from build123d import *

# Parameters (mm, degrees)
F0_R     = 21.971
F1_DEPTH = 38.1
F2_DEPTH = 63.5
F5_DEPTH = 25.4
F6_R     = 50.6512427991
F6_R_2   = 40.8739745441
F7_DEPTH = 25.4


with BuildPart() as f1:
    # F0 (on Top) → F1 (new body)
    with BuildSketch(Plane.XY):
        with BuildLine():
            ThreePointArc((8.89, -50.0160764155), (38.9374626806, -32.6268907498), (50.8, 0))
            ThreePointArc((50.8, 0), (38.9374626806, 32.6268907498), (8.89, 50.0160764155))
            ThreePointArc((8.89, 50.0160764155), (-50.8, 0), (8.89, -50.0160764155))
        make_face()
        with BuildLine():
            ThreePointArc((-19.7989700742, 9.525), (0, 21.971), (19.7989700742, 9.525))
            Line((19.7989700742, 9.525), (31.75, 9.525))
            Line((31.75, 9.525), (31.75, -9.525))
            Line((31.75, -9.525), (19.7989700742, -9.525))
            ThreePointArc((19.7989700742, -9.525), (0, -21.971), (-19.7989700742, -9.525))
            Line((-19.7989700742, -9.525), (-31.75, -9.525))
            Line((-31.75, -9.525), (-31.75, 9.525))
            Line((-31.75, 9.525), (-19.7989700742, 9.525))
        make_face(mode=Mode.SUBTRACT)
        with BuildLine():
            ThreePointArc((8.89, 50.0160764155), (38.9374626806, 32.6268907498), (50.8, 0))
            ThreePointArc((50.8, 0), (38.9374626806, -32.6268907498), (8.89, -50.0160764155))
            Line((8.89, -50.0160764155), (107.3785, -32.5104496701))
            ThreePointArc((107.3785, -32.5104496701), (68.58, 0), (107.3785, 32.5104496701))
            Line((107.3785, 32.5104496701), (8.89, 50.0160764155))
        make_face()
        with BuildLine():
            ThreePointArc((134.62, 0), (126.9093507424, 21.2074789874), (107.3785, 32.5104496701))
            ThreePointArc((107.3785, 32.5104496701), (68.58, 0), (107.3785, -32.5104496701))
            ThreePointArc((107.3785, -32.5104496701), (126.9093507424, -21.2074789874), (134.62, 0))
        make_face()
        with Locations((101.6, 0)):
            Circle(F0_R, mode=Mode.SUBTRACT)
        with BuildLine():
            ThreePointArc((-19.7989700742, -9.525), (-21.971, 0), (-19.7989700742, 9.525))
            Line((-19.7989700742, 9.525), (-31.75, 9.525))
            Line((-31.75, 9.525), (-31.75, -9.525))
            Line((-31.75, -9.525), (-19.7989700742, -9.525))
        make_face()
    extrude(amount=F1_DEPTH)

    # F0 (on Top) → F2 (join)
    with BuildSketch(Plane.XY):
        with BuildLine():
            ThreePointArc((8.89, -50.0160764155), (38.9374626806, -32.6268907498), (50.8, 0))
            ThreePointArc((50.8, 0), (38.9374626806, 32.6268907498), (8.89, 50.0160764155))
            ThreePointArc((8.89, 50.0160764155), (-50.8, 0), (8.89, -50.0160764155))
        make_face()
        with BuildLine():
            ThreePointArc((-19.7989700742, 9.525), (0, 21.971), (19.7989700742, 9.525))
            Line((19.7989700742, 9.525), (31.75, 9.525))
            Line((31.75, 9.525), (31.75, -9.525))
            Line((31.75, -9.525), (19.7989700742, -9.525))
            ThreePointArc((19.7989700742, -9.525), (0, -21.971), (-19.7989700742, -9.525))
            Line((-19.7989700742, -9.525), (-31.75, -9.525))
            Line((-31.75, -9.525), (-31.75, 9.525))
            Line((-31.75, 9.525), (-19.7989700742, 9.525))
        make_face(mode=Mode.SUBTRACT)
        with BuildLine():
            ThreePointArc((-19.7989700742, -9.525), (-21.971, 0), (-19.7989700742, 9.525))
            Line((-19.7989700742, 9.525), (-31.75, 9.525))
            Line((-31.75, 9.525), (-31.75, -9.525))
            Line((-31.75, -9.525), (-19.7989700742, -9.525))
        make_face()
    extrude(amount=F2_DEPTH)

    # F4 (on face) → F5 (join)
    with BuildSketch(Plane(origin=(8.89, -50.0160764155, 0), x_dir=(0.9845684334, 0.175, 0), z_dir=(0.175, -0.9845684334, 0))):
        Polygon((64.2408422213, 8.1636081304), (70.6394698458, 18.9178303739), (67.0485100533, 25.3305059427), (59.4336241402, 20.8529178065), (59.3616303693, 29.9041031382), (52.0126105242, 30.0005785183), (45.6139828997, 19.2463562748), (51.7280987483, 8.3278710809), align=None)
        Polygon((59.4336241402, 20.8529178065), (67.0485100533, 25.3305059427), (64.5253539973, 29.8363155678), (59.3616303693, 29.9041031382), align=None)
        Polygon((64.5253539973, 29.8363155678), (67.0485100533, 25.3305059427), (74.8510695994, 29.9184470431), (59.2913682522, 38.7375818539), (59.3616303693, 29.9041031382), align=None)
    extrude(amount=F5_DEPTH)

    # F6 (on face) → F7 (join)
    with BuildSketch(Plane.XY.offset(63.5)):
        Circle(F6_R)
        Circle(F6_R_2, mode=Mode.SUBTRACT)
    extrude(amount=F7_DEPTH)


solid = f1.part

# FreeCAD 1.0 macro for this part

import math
import FreeCAD as App
import Part
import Sketcher
Q = App.Units.Quantity

doc = App.newDocument("Part")
body = doc.addObject("PartDesign::Body", "Body")

# Sketch on XY plane
sketch1 = body.newObject("Sketcher::SketchObject", "Sketch")
sketch1.AttachmentSupport = (doc.getObject("XY_Plane"), [""])
sketch1.MapMode = "FlatFace"
sketch1.addGeometry(Part.ArcOfCircle(Part.Circle(App.Vector(0, 0, 0), App.Vector(0, 0, 1), 51), math.radians(80), math.radians(280)), False)
sketch1.addGeometry(Part.LineSegment(App.Vector(9, -50, 0), App.Vector(107, -33, 0)), False)
sketch1.addGeometry(Part.ArcOfCircle(Part.Circle(App.Vector(102, 0, 0), App.Vector(0, 0, 1), 33), math.radians(-80), math.radians(80)), False)
sketch1.addGeometry(Part.LineSegment(App.Vector(107, 33, 0), App.Vector(9, 50, 0)), False)
sketch1.addGeometry(Part.ArcOfCircle(Part.Circle(App.Vector(0, 0, 0), App.Vector(0, 0, 1), 22), math.radians(26), math.radians(154)), False)
sketch1.addGeometry(Part.LineSegment(App.Vector(20, 10, 0), App.Vector(32, 10, 0)), False)
sketch1.addGeometry(Part.LineSegment(App.Vector(32, 10, 0), App.Vector(32, -10, 0)), False)
sketch1.addGeometry(Part.LineSegment(App.Vector(32, -10, 0), App.Vector(20, -10, 0)), False)
sketch1.addGeometry(Part.ArcOfCircle(Part.Circle(App.Vector(0, 0, 0), App.Vector(0, 0, 1), 22), math.radians(-154), math.radians(-26)), False)
sketch1.addGeometry(Part.ArcOfCircle(Part.Circle(App.Vector(0, 0, 0), App.Vector(0, 0, 1), 22), math.radians(154), math.radians(206)), False)
sketch1.addGeometry(Part.Circle(App.Vector(102, 0, 0), App.Vector(0, 0, 1), 22), False)
sketch1.addConstraint(Sketcher.Constraint("Tangent", 0, 2, 1, 1))
sketch1.addConstraint(Sketcher.Constraint("Tangent", 1, 2, 2, 1))
sketch1.addConstraint(Sketcher.Constraint("Tangent", 2, 2, 3, 1))
sketch1.addConstraint(Sketcher.Constraint("Tangent", 3, 2, 0, 1))
sketch1.addConstraint(Sketcher.Constraint("Coincident", 4, 1, 5, 1))
sketch1.addConstraint(Sketcher.Constraint("Coincident", 5, 2, 6, 1))
sketch1.addConstraint(Sketcher.Constraint("Coincident", 6, 2, 7, 1))
sketch1.addConstraint(Sketcher.Constraint("Coincident", 7, 2, 8, 2))
sketch1.addConstraint(Sketcher.Constraint("Tangent", 8, 1, 9, 2))
sketch1.addConstraint(Sketcher.Constraint("Tangent", 9, 1, 4, 2))
sketch1.addConstraint(Sketcher.Constraint("Horizontal", 5))
sketch1.addConstraint(Sketcher.Constraint("Vertical", 6))
sketch1.addConstraint(Sketcher.Constraint("Horizontal", 7))
sketch1.addConstraint(Sketcher.Constraint("Coincident", 0, 3, -1, 1))
sketch1.addConstraint(Sketcher.Constraint("Coincident", 4, 3, -1, 1))
sketch1.addConstraint(Sketcher.Constraint("Coincident", 8, 3, -1, 1))
sketch1.addConstraint(Sketcher.Constraint("Coincident", 10, 3, 2, 3))
sketch1.addConstraint(Sketcher.Constraint("Equal", 9, 10))
sketch1.addConstraint(Sketcher.Constraint("PointOnObject", 2, 3, -1))
sketch1.addConstraint(Sketcher.Constraint("Horizontal", 7, 2, 8, 1))
sketch1.addConstraint(Sketcher.Constraint("Horizontal", 5, 2, 9, 1))
sketch1.addConstraint(Sketcher.Constraint("Vertical", 4, 1, 7, 2))
sketch1.addConstraint(Sketcher.Constraint("Radius", 0, Q("2 in")))
sketch1.addConstraint(Sketcher.Constraint("Radius", 2, Q("1.3 in")))
sketch1.addConstraint(Sketcher.Constraint("Diameter", 10, Q("1.73 in")))
sketch1.addConstraint(Sketcher.Constraint("DistanceX", -1, 1, 2, 3, Q("4 in")))
sketch1.addConstraint(Sketcher.Constraint("DistanceY", 6, 2, 6, 1, Q("0.75 in")))
sketch1.addConstraint(Sketcher.Constraint("DistanceX", -1, 1, 5, 2, Q("1.25 in")))
pad1 = body.newObject("PartDesign::Pad", "Pad")
pad1.Profile = sketch1
pad1.Length = Q("1.5 in")

# Sketch on XY plane
sketch2 = body.newObject("Sketcher::SketchObject", "Sketch001")
sketch2.AttachmentSupport = (doc.getObject("XY_Plane"), [""])
sketch2.MapMode = "FlatFace"
sketch2.addGeometry(Part.Circle(App.Vector(0, 0, 0), App.Vector(0, 0, 1), 51), False)
sketch2.addGeometry(Part.ArcOfCircle(Part.Circle(App.Vector(0, 0, 0), App.Vector(0, 0, 1), 22), math.radians(-154), math.radians(-26)), False)
sketch2.addGeometry(Part.ArcOfCircle(Part.Circle(App.Vector(0, 0, 0), App.Vector(0, 0, 1), 22), math.radians(154), math.radians(206)), False)
sketch2.addGeometry(Part.ArcOfCircle(Part.Circle(App.Vector(0, 0, 0), App.Vector(0, 0, 1), 22), math.radians(26), math.radians(154)), False)
sketch2.addGeometry(Part.LineSegment(App.Vector(20, 10, 0), App.Vector(32, 10, 0)), False)
sketch2.addGeometry(Part.LineSegment(App.Vector(32, 10, 0), App.Vector(32, -10, 0)), False)
sketch2.addGeometry(Part.LineSegment(App.Vector(32, -10, 0), App.Vector(20, -10, 0)), False)
sketch2.addConstraint(Sketcher.Constraint("Tangent", 1, 1, 2, 2))
sketch2.addConstraint(Sketcher.Constraint("Tangent", 2, 1, 3, 2))
sketch2.addConstraint(Sketcher.Constraint("Coincident", 3, 1, 4, 1))
sketch2.addConstraint(Sketcher.Constraint("Coincident", 4, 2, 5, 1))
sketch2.addConstraint(Sketcher.Constraint("Coincident", 5, 2, 6, 1))
sketch2.addConstraint(Sketcher.Constraint("Coincident", 6, 2, 1, 2))
sketch2.addConstraint(Sketcher.Constraint("Horizontal", 4))
sketch2.addConstraint(Sketcher.Constraint("Vertical", 5))
sketch2.addConstraint(Sketcher.Constraint("Horizontal", 6))
sketch2.addConstraint(Sketcher.Constraint("Coincident", 0, 3, -1, 1))
sketch2.addConstraint(Sketcher.Constraint("Coincident", 1, 3, -1, 1))
sketch2.addConstraint(Sketcher.Constraint("Coincident", 3, 3, -1, 1))
sketch2.addConstraint(Sketcher.Constraint("Horizontal", 2, 1, 3, 1))
sketch2.addConstraint(Sketcher.Constraint("Horizontal", 1, 1, 5, 2))
sketch2.addConstraint(Sketcher.Constraint("Vertical", 1, 1, 2, 1))
sketch2.addConstraint(Sketcher.Constraint("Diameter", 0, Q("4 in")))
sketch2.addConstraint(Sketcher.Constraint("Radius", 1, Q("0.865 in")))
sketch2.addConstraint(Sketcher.Constraint("DistanceY", 5, 2, 5, 1, Q("0.75 in")))
sketch2.addConstraint(Sketcher.Constraint("DistanceX", -1, 1, 4, 2, Q("1.25 in")))
pad2 = body.newObject("PartDesign::Pad", "Pad001")
pad2.Profile = sketch2
pad2.Length = Q("2.5 in")

# Sketch on an angled plane
sketch3 = body.newObject("Sketcher::SketchObject", "Sketch002")
sketch3.Placement = App.Placement(App.Vector(8.89, -50.016076, 0), App.Rotation(App.Vector(0.984568433, 0.175, 0), App.Vector(0, 0, 0.999999999), App.Vector(0.175, -0.984568433, 0), "ZXY"))
sketch3.addGeometry(Part.LineSegment(App.Vector(64, 8, 0), App.Vector(71, 19, 0)), False)
sketch3.addGeometry(Part.LineSegment(App.Vector(71, 19, 0), App.Vector(67, 25, 0)), False)
sketch3.addGeometry(Part.LineSegment(App.Vector(67, 25, 0), App.Vector(75, 30, 0)), False)
sketch3.addGeometry(Part.LineSegment(App.Vector(75, 30, 0), App.Vector(59, 39, 0)), False)
sketch3.addGeometry(Part.LineSegment(App.Vector(59, 39, 0), App.Vector(59, 30, 0)), False)
sketch3.addGeometry(Part.LineSegment(App.Vector(59, 30, 0), App.Vector(52, 30, 0)), False)
sketch3.addGeometry(Part.LineSegment(App.Vector(52, 30, 0), App.Vector(46, 19, 0)), False)
sketch3.addGeometry(Part.LineSegment(App.Vector(46, 19, 0), App.Vector(52, 8, 0)), False)
sketch3.addGeometry(Part.LineSegment(App.Vector(52, 8, 0), App.Vector(64, 8, 0)), False)
sketch3.addConstraint(Sketcher.Constraint("Coincident", 0, 2, 1, 1))
sketch3.addConstraint(Sketcher.Constraint("Coincident", 1, 2, 2, 1))
sketch3.addConstraint(Sketcher.Constraint("Coincident", 2, 2, 3, 1))
sketch3.addConstraint(Sketcher.Constraint("Coincident", 3, 2, 4, 1))
sketch3.addConstraint(Sketcher.Constraint("Coincident", 4, 2, 5, 1))
sketch3.addConstraint(Sketcher.Constraint("Coincident", 5, 2, 6, 1))
sketch3.addConstraint(Sketcher.Constraint("Coincident", 6, 2, 7, 1))
sketch3.addConstraint(Sketcher.Constraint("Coincident", 7, 2, 8, 1))
sketch3.addConstraint(Sketcher.Constraint("Coincident", 8, 2, 0, 1))
sketch3.addConstraint(Sketcher.Constraint("Parallel", 0, 6))
sketch3.addConstraint(Sketcher.Constraint("Parallel", 1, 7))
sketch3.addConstraint(Sketcher.Constraint("Parallel", 5, 8))
sketch3.addConstraint(Sketcher.Constraint("Equal", 1, 5))
sketch3.addConstraint(Sketcher.Constraint("Equal", 0, 6))
sketch3.addConstraint(Sketcher.Constraint("Equal", 6, 7))
sketch3.addConstraint(Sketcher.Constraint("Equal", 7, 8))
sketch3.addConstraint(Sketcher.Constraint("DistanceX", -1, 1, 7, 2, Q("51.728099 mm")))
sketch3.addConstraint(Sketcher.Constraint("DistanceX", 0, 2, 2, 2, Q("4.2116 mm")))
sketch3.addConstraint(Sketcher.Constraint("DistanceX", 3, 2, 2, 2, Q("15.559701 mm")))
sketch3.addConstraint(Sketcher.Constraint("DistanceX", 5, 2, 1, 2, Q("15.0359 mm")))
sketch3.addConstraint(Sketcher.Constraint("Distance", 0, Q("12.513822 mm")))
sketch3.addConstraint(Sketcher.Constraint("Distance", 2, Q("9.051472 mm")))
sketch3.addConstraint(Sketcher.Constraint("Distance", 3, Q("17.88523 mm")))
sketch3.addConstraint(Sketcher.Constraint("Distance", 4, Q("8.833758 mm")))
sketch3.addConstraint(Sketcher.Constraint("DistanceX", -1, 1, 0, 2, Q("70.63947 mm")))
sketch3.addConstraint(Sketcher.Constraint("DistanceY", -1, 1, 0, 2, Q("18.91783 mm")))
sketch3.addConstraint(Sketcher.Constraint("DistanceX", -1, 1, 1, 2, Q("67.04851 mm")))
pad3 = body.newObject("PartDesign::Pad", "Pad002")
pad3.Profile = sketch3
pad3.Length = Q("1 in")

# Sketch on XY plane
sketch4 = body.newObject("Sketcher::SketchObject", "Sketch003")
sketch4.AttachmentSupport = (doc.getObject("XY_Plane"), [""])
sketch4.MapMode = "FlatFace"
sketch4.AttachmentOffset = App.Placement(App.Vector(0, 0, 2.5 * 25.4), App.Rotation())
sketch4.addGeometry(Part.Circle(App.Vector(0, 0, 0), App.Vector(0, 0, 1), 51), False)
sketch4.addGeometry(Part.Circle(App.Vector(0, 0, 0), App.Vector(0, 0, 1), 41), False)
sketch4.addConstraint(Sketcher.Constraint("Coincident", 0, 3, -1, 1))
sketch4.addConstraint(Sketcher.Constraint("Coincident", 1, 3, -1, 1))
sketch4.addConstraint(Sketcher.Constraint("Diameter", 1, Q("81.747949 mm")))
sketch4.addConstraint(Sketcher.Constraint("Diameter", 0, Q("101.302486 mm")))
pad4 = body.newObject("PartDesign::Pad", "Pad003")
pad4.Profile = sketch4
pad4.Length = Q("1 in")

doc.recompute()
